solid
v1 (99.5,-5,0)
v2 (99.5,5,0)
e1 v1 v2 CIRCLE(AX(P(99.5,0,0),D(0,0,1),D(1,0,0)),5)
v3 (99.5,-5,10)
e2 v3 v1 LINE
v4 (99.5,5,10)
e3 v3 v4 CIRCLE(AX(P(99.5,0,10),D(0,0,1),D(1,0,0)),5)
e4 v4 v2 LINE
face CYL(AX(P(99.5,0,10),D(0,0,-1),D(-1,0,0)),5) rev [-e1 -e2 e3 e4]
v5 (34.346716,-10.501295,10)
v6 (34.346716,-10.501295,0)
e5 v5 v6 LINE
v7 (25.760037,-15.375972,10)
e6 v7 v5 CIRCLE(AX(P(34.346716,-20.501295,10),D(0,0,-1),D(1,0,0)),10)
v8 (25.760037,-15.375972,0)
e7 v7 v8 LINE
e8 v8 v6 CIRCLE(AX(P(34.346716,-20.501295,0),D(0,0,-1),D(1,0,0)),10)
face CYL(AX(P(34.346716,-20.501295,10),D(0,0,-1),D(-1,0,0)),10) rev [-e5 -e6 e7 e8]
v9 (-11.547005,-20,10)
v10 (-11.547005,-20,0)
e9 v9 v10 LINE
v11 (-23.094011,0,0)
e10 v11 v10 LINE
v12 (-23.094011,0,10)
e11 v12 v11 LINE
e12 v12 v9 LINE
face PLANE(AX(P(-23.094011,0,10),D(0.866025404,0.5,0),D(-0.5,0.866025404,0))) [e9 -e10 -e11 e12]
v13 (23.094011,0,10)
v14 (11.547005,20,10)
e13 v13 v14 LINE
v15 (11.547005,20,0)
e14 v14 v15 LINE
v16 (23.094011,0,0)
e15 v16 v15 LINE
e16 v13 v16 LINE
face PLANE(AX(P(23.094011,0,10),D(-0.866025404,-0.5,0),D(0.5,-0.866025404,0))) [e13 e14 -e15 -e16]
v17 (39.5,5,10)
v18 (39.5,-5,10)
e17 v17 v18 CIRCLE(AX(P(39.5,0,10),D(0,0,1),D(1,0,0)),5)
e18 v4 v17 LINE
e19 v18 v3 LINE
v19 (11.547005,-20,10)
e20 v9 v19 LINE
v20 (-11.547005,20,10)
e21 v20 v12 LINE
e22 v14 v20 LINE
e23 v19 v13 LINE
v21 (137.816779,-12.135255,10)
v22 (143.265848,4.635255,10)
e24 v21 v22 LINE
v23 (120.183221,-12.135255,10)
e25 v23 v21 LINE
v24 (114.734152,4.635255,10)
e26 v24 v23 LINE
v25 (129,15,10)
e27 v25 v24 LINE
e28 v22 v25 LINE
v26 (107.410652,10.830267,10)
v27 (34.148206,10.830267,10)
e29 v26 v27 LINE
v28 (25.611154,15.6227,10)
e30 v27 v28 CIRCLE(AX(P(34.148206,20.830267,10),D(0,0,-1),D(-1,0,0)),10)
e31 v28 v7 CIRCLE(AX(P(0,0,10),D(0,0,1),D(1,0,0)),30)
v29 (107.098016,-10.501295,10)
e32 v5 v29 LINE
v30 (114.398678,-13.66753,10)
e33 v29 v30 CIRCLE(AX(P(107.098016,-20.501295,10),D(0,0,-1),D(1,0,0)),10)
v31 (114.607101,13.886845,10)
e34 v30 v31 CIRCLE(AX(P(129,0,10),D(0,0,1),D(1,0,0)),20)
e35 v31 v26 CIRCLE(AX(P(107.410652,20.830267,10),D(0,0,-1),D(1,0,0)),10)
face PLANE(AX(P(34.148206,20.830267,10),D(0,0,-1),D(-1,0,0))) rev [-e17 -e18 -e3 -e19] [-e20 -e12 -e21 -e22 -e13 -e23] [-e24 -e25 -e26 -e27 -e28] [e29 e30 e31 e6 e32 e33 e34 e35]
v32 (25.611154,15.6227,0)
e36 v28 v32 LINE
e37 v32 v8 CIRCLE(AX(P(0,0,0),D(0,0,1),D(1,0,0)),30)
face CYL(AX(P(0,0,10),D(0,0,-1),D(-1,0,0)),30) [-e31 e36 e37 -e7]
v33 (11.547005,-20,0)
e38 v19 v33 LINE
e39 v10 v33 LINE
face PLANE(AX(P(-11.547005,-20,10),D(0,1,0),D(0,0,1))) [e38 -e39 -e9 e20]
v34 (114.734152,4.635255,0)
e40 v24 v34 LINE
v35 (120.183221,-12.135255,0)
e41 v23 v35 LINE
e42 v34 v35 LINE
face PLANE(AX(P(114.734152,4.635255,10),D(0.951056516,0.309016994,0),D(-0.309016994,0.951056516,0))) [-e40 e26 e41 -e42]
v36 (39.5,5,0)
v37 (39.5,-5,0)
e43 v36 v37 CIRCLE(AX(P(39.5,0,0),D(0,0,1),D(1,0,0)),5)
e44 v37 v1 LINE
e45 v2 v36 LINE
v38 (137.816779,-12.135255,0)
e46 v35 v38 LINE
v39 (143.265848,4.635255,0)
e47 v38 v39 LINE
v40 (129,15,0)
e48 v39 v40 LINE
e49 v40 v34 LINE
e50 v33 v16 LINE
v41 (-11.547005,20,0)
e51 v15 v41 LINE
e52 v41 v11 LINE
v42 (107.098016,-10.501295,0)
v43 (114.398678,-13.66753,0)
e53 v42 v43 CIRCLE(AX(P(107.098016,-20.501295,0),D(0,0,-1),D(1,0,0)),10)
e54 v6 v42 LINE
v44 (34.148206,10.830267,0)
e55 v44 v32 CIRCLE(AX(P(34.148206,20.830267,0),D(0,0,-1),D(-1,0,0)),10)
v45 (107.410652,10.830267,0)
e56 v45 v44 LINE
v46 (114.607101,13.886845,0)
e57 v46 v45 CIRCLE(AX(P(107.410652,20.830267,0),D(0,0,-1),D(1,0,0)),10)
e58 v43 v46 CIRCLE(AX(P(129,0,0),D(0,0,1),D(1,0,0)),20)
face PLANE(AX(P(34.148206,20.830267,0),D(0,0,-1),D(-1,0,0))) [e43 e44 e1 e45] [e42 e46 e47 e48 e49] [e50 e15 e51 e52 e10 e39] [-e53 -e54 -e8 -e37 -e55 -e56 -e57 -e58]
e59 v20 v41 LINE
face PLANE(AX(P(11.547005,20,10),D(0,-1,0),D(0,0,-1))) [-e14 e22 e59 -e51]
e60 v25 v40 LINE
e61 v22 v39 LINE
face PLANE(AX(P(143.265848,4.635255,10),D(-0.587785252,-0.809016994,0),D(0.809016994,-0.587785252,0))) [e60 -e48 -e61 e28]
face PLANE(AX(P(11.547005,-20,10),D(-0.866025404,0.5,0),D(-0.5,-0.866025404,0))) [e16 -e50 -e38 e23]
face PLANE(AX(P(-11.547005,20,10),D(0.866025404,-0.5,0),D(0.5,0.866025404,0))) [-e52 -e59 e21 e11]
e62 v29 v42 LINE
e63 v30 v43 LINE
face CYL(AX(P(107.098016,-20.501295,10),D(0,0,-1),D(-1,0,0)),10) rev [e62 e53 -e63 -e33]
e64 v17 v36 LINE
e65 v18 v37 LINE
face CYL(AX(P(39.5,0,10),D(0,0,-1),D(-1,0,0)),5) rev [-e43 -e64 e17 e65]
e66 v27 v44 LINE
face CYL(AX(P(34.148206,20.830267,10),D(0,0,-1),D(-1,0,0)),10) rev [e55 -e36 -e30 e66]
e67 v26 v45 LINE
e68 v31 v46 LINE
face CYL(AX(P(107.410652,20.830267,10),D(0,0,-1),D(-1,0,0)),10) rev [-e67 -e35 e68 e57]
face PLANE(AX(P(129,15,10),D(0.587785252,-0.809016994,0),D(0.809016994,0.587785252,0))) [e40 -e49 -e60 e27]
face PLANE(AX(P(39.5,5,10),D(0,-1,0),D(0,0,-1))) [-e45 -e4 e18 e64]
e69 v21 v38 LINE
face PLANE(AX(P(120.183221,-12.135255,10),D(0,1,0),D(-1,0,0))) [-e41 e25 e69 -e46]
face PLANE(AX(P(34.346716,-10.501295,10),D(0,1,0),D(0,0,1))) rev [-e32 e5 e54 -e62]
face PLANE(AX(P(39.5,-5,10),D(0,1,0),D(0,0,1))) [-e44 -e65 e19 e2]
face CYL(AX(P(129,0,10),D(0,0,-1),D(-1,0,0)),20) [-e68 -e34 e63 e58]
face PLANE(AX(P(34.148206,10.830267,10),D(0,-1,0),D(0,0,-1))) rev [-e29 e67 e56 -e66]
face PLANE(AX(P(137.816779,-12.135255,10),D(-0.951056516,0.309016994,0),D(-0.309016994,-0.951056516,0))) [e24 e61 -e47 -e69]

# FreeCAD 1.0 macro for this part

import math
import FreeCAD as App
import Part
import Sketcher

V = App.Vector
Q = App.Units.Quantity

doc = App.newDocument("Part")
body = doc.addObject("PartDesign::Body", "Body")

# Sketch on XY plane
sketch1 = body.newObject("Sketcher::SketchObject", "Sketch")
sketch1.AttachmentSupport = (doc.getObject("XY_Plane"), [""])
sketch1.MapMode = "FlatFace"
sketch1.addGeometry(Part.LineSegment(V(107, 11, 0), V(34, 11, 0)), False)
sketch1.addGeometry(Part.ArcOfCircle(Part.Circle(V(34, 21, 0), V(0, 0, 1), 10), math.radians(-149), math.radians(-90)), False)
sketch1.addGeometry(Part.ArcOfCircle(Part.Circle(V(0, 0, 0), V(0, 0, 1), 30), math.radians(31), math.radians(329)), False)
sketch1.addGeometry(Part.ArcOfCircle(Part.Circle(V(34, -21, 0), V(0, 0, 1), 10), math.radians(90), math.radians(149)), False)
sketch1.addGeometry(Part.LineSegment(V(34, -11, 0), V(107, -11, 0)), False)
sketch1.addGeometry(Part.ArcOfCircle(Part.Circle(V(107, -21, 0), V(0, 0, 1), 10), math.radians(43), math.radians(90)), False)
sketch1.addGeometry(Part.ArcOfCircle(Part.Circle(V(129, 0, 0), V(0, 0, 1), 20), math.radians(-137), math.radians(136)), False)
sketch1.addGeometry(Part.ArcOfCircle(Part.Circle(V(107, 21, 0), V(0, 0, 1), 10), math.radians(-90), math.radians(-44)), False)
sketch1.addGeometry(Part.LineSegment(V(129, 15, 0), V(143, 5, 0)), False)
sketch1.addGeometry(Part.LineSegment(V(143, 5, 0), V(138, -12, 0)), False)
sketch1.addGeometry(Part.LineSegment(V(138, -12, 0), V(120, -12, 0)), False)
sketch1.addGeometry(Part.LineSegment(V(120, -12, 0), V(115, 5, 0)), False)
sketch1.addGeometry(Part.LineSegment(V(115, 5, 0), V(129, 15, 0)), False)
sketch1.addGeometry(Part.LineSegment(V(40, 5, 0), V(100, 5, 0)), False)
sketch1.addGeometry(Part.ArcOfCircle(Part.Circle(V(100, 0, 0), V(0, 0, 1), 5), math.radians(-90), math.radians(90)), False)
sketch1.addGeometry(Part.LineSegment(V(100, -5, 0), V(40, -5, 0)), False)
sketch1.addGeometry(Part.ArcOfCircle(Part.Circle(V(40, 0, 0), V(0, 0, 1), 5), math.radians(90), math.radians(270)), False)
sketch1.addGeometry(Part.LineSegment(V(12, 20, 0), V(23, 0, 0)), False)
sketch1.addGeometry(Part.LineSegment(V(23, 0, 0), V(12, -20, 0)), False)
sketch1.addGeometry(Part.LineSegment(V(12, -20, 0), V(-12, -20, 0)), False)
sketch1.addGeometry(Part.LineSegment(V(-12, -20, 0), V(-23, 0, 0)), False)
sketch1.addGeometry(Part.LineSegment(V(-23, 0, 0), V(-12, 20, 0)), False)
sketch1.addGeometry(Part.LineSegment(V(-12, 20, 0), V(12, 20, 0)), False)
sketch1.addConstraint(Sketcher.Constraint("Tangent", 0, 2, 1, 2))
sketch1.addConstraint(Sketcher.Constraint("Tangent", 1, 1, 2, 1))
sketch1.addConstraint(Sketcher.Constraint("Tangent", 2, 2, 3, 2))
sketch1.addConstraint(Sketcher.Constraint("Tangent", 3, 1, 4, 1))
sketch1.addConstraint(Sketcher.Constraint("Tangent", 4, 2, 5, 2))
sketch1.addConstraint(Sketcher.Constraint("Tangent", 5, 1, 6, 1))
sketch1.addConstraint(Sketcher.Constraint("Tangent", 6, 2, 7, 2))
sketch1.addConstraint(Sketcher.Constraint("Tangent", 7, 1, 0, 1))
sketch1.addConstraint(Sketcher.Constraint("Coincident", 8, 2, 9, 1))
sketch1.addConstraint(Sketcher.Constraint("Coincident", 9, 2, 10, 1))
sketch1.addConstraint(Sketcher.Constraint("Coincident", 10, 2, 11, 1))
sketch1.addConstraint(Sketcher.Constraint("Coincident", 11, 2, 12, 1))
sketch1.addConstraint(Sketcher.Constraint("Coincident", 12, 2, 8, 1))
sketch1.addConstraint(Sketcher.Constraint("Tangent", 13, 2, 14, 2))
sketch1.addConstraint(Sketcher.Constraint("Tangent", 14, 1, 15, 1))
sketch1.addConstraint(Sketcher.Constraint("Tangent", 15, 2, 16, 2))
sketch1.addConstraint(Sketcher.Constraint("Tangent", 16, 1, 13, 1))
sketch1.addConstraint(Sketcher.Constraint("Coincident", 17, 2, 18, 1))
sketch1.addConstraint(Sketcher.Constraint("Coincident", 18, 2, 19, 1))
sketch1.addConstraint(Sketcher.Constraint("Coincident", 19, 2, 20, 1))
sketch1.addConstraint(Sketcher.Constraint("Coincident", 20, 2, 21, 1))
sketch1.addConstraint(Sketcher.Constraint("Coincident", 21, 2, 22, 1))
sketch1.addConstraint(Sketcher.Constraint("Coincident", 22, 2, 17, 1))
sketch1.addConstraint(Sketcher.Constraint("Horizontal", 0))
sketch1.addConstraint(Sketcher.Constraint("Horizontal", 4))
sketch1.addConstraint(Sketcher.Constraint("Horizontal", 10))
sketch1.addConstraint(Sketcher.Constraint("Horizontal", 13))
sketch1.addConstraint(Sketcher.Constraint("Horizontal", 15))
sketch1.addConstraint(Sketcher.Constraint("Horizontal", 19))
sketch1.addConstraint(Sketcher.Constraint("Horizontal", 22))
sketch1.addConstraint(Sketcher.Constraint("Coincident", 2, 3, -1, 1))
sketch1.addConstraint(Sketcher.Constraint("Equal", 1, 3))
sketch1.addConstraint(Sketcher.Constraint("Equal", 3, 5))
sketch1.addConstraint(Sketcher.Constraint("Equal", 5, 7))
sketch1.addConstraint(Sketcher.Constraint("Symmetric", 17, 2, 20, 2, -1, 1))
sketch1.addConstraint(Sketcher.Constraint("Symmetric", 18, 2, 21, 2, -1, 1))
sketch1.addConstraint(Sketcher.Constraint("PointOnObject", 6, 3, -1))
sketch1.addConstraint(Sketcher.Constraint("PointOnObject", 14, 3, -1))
sketch1.addConstraint(Sketcher.Constraint("PointOnObject", 17, 2, -1))
sketch1.addConstraint(Sketcher.Constraint("Parallel", 17, 20))
sketch1.addConstraint(Sketcher.Constraint("Horizontal", 8, 2, 11, 2))
sketch1.addConstraint(Sketcher.Constraint("Vertical", 6, 3, 12, 2))
sketch1.addConstraint(Sketcher.Constraint("Vertical", 19, 2, 21, 2))
sketch1.addConstraint(Sketcher.Constraint("Equal", 8, 9))
sketch1.addConstraint(Sketcher.Constraint("Equal", 9, 11))
sketch1.addConstraint(Sketcher.Constraint("Equal", 11, 12))
sketch1.addConstraint(Sketcher.Constraint("Radius", 1, 10.0))
sketch1.addConstraint(Sketcher.Constraint("Radius", 2, 30.0))
sketch1.addConstraint(Sketcher.Constraint("Radius", 6, 20.0))
sketch1.addConstraint(Sketcher.Constraint("Radius", 14, 5.0))
sketch1.addConstraint(Sketcher.Constraint("DistanceX", 13, 1, 13, 2, 60.0))
sketch1.addConstraint(Sketcher.Constraint("Angle", 8, Q("-36 deg")))
sketch1.addConstraint(Sketcher.Constraint("Angle", 9, Q("-108 deg")))
sketch1.addConstraint(Sketcher.Constraint("Angle", 17, Q("-60 deg")))
sketch1.addConstraint(Sketcher.Constraint("DistanceX", -1, 1, 6, 3, 129.0))
sketch1.addConstraint(Sketcher.Constraint("DistanceY", -1, 1, 12, 2, 15.0))
sketch1.addConstraint(Sketcher.Constraint("DistanceY", 18, 2, -1, 1, 20.0))
sketch1.addConstraint(Sketcher.Constraint("DistanceX", -1, 1, 14, 3, 99.5))
sketch1.addConstraint(Sketcher.Constraint("DistanceX", 4, 1, 4, 2, 72.751301))
sketch1.addConstraint(Sketcher.Constraint("DistanceX", 19, 2, 19, 1, 23.094011))
sketch1.addConstraint(Sketcher.Constraint("DistanceY", -1, 1, 1, 1, 15.6227))
sketch1.addConstraint(Sketcher.Constraint("DistanceX", 5, 1, 9, 2, 23.418101))
pad1 = body.newObject("PartDesign::Pad", "Pad")
pad1.Profile = sketch1
pad1.Length = 10

doc.recompute()
